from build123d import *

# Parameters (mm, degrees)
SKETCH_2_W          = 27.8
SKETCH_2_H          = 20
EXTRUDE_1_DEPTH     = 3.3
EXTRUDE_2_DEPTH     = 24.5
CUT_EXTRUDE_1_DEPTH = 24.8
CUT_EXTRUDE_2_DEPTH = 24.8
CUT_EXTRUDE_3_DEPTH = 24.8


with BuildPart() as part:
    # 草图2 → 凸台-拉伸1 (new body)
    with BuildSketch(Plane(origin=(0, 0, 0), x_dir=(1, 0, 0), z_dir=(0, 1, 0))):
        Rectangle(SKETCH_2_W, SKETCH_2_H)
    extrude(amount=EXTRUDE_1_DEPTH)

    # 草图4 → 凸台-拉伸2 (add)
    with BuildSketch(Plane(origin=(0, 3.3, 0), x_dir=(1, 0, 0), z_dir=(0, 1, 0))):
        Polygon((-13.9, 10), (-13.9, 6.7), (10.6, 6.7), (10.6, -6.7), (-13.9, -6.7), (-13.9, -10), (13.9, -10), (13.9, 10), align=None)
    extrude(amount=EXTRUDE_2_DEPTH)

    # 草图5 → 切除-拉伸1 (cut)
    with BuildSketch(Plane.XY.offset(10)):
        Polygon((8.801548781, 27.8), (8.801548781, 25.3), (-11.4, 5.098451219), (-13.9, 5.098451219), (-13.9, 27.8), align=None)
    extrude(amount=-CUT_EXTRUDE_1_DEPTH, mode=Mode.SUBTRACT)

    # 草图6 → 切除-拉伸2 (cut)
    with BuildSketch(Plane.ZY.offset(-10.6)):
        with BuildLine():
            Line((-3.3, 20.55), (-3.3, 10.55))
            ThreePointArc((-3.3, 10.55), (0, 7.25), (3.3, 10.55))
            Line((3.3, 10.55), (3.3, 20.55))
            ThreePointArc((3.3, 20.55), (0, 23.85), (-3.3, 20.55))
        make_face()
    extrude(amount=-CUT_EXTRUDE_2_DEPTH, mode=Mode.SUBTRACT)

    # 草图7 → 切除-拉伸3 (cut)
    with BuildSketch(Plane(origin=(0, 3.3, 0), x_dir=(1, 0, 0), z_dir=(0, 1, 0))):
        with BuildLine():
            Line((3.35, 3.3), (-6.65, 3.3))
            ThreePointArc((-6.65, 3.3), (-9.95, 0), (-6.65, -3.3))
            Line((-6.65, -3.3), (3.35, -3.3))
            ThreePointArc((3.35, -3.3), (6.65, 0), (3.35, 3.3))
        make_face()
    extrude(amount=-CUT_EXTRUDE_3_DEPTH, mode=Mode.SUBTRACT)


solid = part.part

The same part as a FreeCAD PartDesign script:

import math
import FreeCAD as App
import Part
import Sketcher

V = App.Vector
Q = App.Units.Quantity

doc = App.newDocument("Part")
params = doc.addObject("Spreadsheet::Sheet", "Params")
for row, (alias, value) in enumerate([
    ("sketch1_height", "20 mm"),
    ("sketch1_width", "27.8 mm"),
    ("pad1_length", "3.3 mm"),
    ("sketch2_height", "20 mm"),
    ("sketch2_width", "24.5 mm"),
    ("sketch2_width2", "27.8 mm"),
    ("sketch2_height2", "3.3 mm"),
    ("pad2_length", "24.5 mm"),
    ("sketch3_width", "2.5 mm"),
    ("pocket1_length", "24.8 mm"),
    ("sketch4_radius", "3.3 mm"),
    ("sketch4_width", "10 mm"),
    ("pocket2_length", "24.8 mm"),
    ("sketch5_radius", "3.3 mm"),
    ("sketch5_width", "10 mm"),
    ("pocket3_length", "24.8 mm"),
], start=1):
    params.set(f"A{row}", alias)
    params.set(f"B{row}", "=" + value)
    params.setAlias(f"B{row}", alias)

body = doc.addObject("PartDesign::Body", "Body")

sketch1 = body.newObject("Sketcher::SketchObject", "Sketch")
sketch1.AttachmentSupport = (doc.getObject("XZ_Plane"), [""])
sketch1.MapMode = "FlatFace"
sketch1.addGeometry([
    Part.LineSegment(V(-13.9, -10, 0), V(-13.9, 10, 0)),
    Part.LineSegment(V(-13.9, 10, 0), V(13.9, 10, 0)),
    Part.LineSegment(V(13.9, 10, 0), V(13.9, -10, 0)),
    Part.LineSegment(V(13.9, -10, 0), V(-13.9, -10, 0)),
], False)
sketch1.addConstraint([
    Sketcher.Constraint("Coincident", 0, 2, 1, 1),
    Sketcher.Constraint("Coincident", 1, 2, 2, 1),
    Sketcher.Constraint("Coincident", 2, 2, 3, 1),
    Sketcher.Constraint("Coincident", 3, 2, 0, 1),
    Sketcher.Constraint("Vertical", 0),
    Sketcher.Constraint("Horizontal", 1),
    Sketcher.Constraint("Vertical", 2),
    Sketcher.Constraint("Horizontal", 3),
    Sketcher.Constraint("Symmetric", 0, 2, 2, 2, -1, 1),
    Sketcher.Constraint("DistanceY", 0, 1, 0, 2, Q("20 mm")),
    Sketcher.Constraint("DistanceX", 1, 1, 1, 2, Q("27.8 mm")),
])
sketch1.setExpression("Constraints[9]", "Params.sketch1_height")
sketch1.setExpression("Constraints[10]", "Params.sketch1_width")
pad1 = body.newObject("PartDesign::Pad", "Pad")
pad1.Profile = sketch1
pad1.setExpression("Length", "Params.pad1_length")
pad1.Reversed = True

sketch2 = body.newObject("Sketcher::SketchObject", "Sketch001")
sketch2.AttachmentSupport = (doc.getObject("XZ_Plane"), [""])
sketch2.MapMode = "FlatFace"
sketch2.AttachmentOffset = App.Placement(V(0, 0, -3.3), App.Rotation())
sketch2.addGeometry([
    Part.LineSegment(V(-13.9, -10, 0), V(-13.9, -6.7, 0)),
    Part.LineSegment(V(-13.9, -6.7, 0), V(10.6, -6.7, 0)),
    Part.LineSegment(V(10.6, -6.7, 0), V(10.6, 6.7, 0)),
    Part.LineSegment(V(10.6, 6.7, 0), V(-13.9, 6.7, 0)),
    Part.LineSegment(V(-13.9, 6.7, 0), V(-13.9, 10, 0)),
    Part.LineSegment(V(-13.9, 10, 0), V(13.9, 10, 0)),
    Part.LineSegment(V(13.9, 10, 0), V(13.9, -10, 0)),
    Part.LineSegment(V(13.9, -10, 0), V(-13.9, -10, 0)),
], False)
sketch2.addConstraint([
    Sketcher.Constraint("Coincident", 0, 2, 1, 1),
    Sketcher.Constraint("Coincident", 1, 2, 2, 1),
    Sketcher.Constraint("Coincident", 2, 2, 3, 1),
    Sketcher.Constraint("Coincident", 3, 2, 4, 1),
    Sketcher.Constraint("Coincident", 4, 2, 5, 1),
    Sketcher.Constraint("Coincident", 5, 2, 6, 1),
    Sketcher.Constraint("Coincident", 6, 2, 7, 1),
    Sketcher.Constraint("Coincident", 7, 2, 0, 1),
    Sketcher.Constraint("Vertical", 0),
    Sketcher.Constraint("Horizontal", 1),
    Sketcher.Constraint("Vertical", 2),
    Sketcher.Constraint("Horizontal", 3),
    Sketcher.Constraint("Vertical", 4),
    Sketcher.Constraint("Horizontal", 5),
    Sketcher.Constraint("Vertical", 6),
    Sketcher.Constraint("Horizontal", 7),
    Sketcher.Constraint("Symmetric", 4, 2, 6, 2, -1, 1),
    Sketcher.Constraint("Symmetric", 0, 2, 3, 2, -1),
    Sketcher.Constraint("DistanceY", 6, 2, 6, 1, Q("20 mm")),
    Sketcher.Constraint("DistanceX", 1, 1, 1, 2, Q("24.5 mm")),
    Sketcher.Constraint("DistanceX", 5, 1, 5, 2, Q("27.8 mm")),
    Sketcher.Constraint("DistanceY", 0, 1, 0, 2, Q("3.3 mm")),
])
sketch2.setExpression("Constraints[18]", "Params.sketch2_height")
sketch2.setExpression("Constraints[19]", "Params.sketch2_width")
sketch2.setExpression("Constraints[20]", "Params.sketch2_width2")
sketch2.setExpression("Constraints[21]", "Params.sketch2_height2")
pad2 = body.newObject("PartDesign::Pad", "Pad001")
pad2.Profile = sketch2
pad2.setExpression("Length", "Params.pad2_length")
pad2.Reversed = True

sketch3 = body.newObject("Sketcher::SketchObject", "Sketch002")
sketch3.AttachmentSupport = (doc.getObject("XY_Plane"), [""])
sketch3.MapMode = "FlatFace"
sketch3.AttachmentOffset = App.Placement(V(0, 0, 10), App.Rotation())
sketch3.addGeometry([
    Part.LineSegment(V(8.801549, 25.3, 0), V(8.801549, 27.8, 0)),
    Part.LineSegment(V(8.801549, 27.8, 0), V(-13.9, 27.8, 0)),
    Part.LineSegment(V(-13.9, 27.8, 0), V(-13.9, 5.098451, 0)),
    Part.LineSegment(V(-13.9, 5.098451, 0), V(-11.4, 5.098451, 0)),
    Part.LineSegment(V(-11.4, 5.098451, 0), V(8.801549, 25.3, 0)),
], False)
sketch3.addConstraint([
    Sketcher.Constraint("Coincident", 0, 2, 1, 1),
    Sketcher.Constraint("Coincident", 1, 2, 2, 1),
    Sketcher.Constraint("Coincident", 2, 2, 3, 1),
    Sketcher.Constraint("Coincident", 3, 2, 4, 1),
    Sketcher.Constraint("Coincident", 4, 2, 0, 1),
    Sketcher.Constraint("Vertical", 0),
    Sketcher.Constraint("Horizontal", 1),
    Sketcher.Constraint("Vertical", 2),
    Sketcher.Constraint("Horizontal", 3),
    Sketcher.Constraint("Equal", 3, 0),
    Sketcher.Constraint("Equal", 1, 2),
    Sketcher.Constraint("DistanceX", 3, 1, 3, 2, Q("2.5 mm")),
    Sketcher.Constraint("DistanceY", -1, 1, 0, 2, Q("27.8 mm")),
    Sketcher.Constraint("DistanceX", 1, 2, -1, 1, Q("13.9 mm")),
    Sketcher.Constraint("DistanceX", 1, 2, 1, 1, Q("22.701549 mm")),
])
sketch3.setExpression("Constraints[11]", "Params.sketch3_width")
pocket1 = body.newObject("PartDesign::Pocket", "Pocket")
pocket1.Profile = sketch3
pocket1.setExpression("Length", "Params.pocket1_length")

sketch4 = body.newObject("Sketcher::SketchObject", "Sketch003")
sketch4.AttachmentSupport = (doc.getObject("YZ_Plane"), [""])
sketch4.MapMode = "FlatFace"
sketch4.AttachmentOffset = App.Placement(V(0, 0, 10.6), App.Rotation())
sketch4.addGeometry([
    Part.LineSegment(V(20.55, -3.3, 0), V(10.55, -3.3, 0)),
    Part.ArcOfCircle(Part.Circle(V(10.55, 0, 0), V(0, 0, 1), 3.3), math.radians(90), math.radians(270)),
    Part.LineSegment(V(10.55, 3.3, 0), V(20.55, 3.3, 0)),
    Part.ArcOfCircle(Part.Circle(V(20.55, 0, 0), V(0, 0, 1), 3.3), math.radians(-90), math.radians(90)),
], False)
sketch4.addConstraint([
    Sketcher.Constraint("Tangent", 0, 2, 1, 2),
    Sketcher.Constraint("Tangent", 1, 1, 2, 1),
    Sketcher.Constraint("Tangent", 2, 2, 3, 2),
    Sketcher.Constraint("Tangent", 3, 1, 0, 1),
    Sketcher.Constraint("Horizontal", 0),
    Sketcher.Constraint("Horizontal", 2),
    Sketcher.Constraint("PointOnObject", 1, 3, -1),
    Sketcher.Constraint("Radius", 1, Q("3.3 mm")),
    Sketcher.Constraint("DistanceX", 0, 2, 0, 1, Q("10 mm")),
    Sketcher.Constraint("DistanceX", -1, 1, 1, 3, Q("10.55 mm")),
])
sketch4.setExpression("Constraints[7]", "Params.sketch4_radius")
sketch4.setExpression("Constraints[8]", "Params.sketch4_width")
pocket2 = body.newObject("PartDesign::Pocket", "Pocket001")
pocket2.Profile = sketch4
pocket2.setExpression("Length", "Params.pocket2_length")
pocket2.Reversed = True

sketch5 = body.newObject("Sketcher::SketchObject", "Sketch004")
sketch5.AttachmentSupport = (doc.getObject("XZ_Plane"), [""])
sketch5.MapMode = "FlatFace"
sketch5.AttachmentOffset = App.Placement(V(0, 0, -3.3), App.Rotation())
sketch5.addGeometry([
    Part.LineSegment(V(3.35, -3.3, 0), V(-6.65, -3.3, 0)),
    Part.ArcOfCircle(Part.Circle(V(-6.65, 0, 0), V(0, 0, 1), 3.3), math.radians(90), math.radians(270)),
    Part.LineSegment(V(-6.65, 3.3, 0), V(3.35, 3.3, 0)),
    Part.ArcOfCircle(Part.Circle(V(3.35, 0, 0), V(0, 0, 1), 3.3), math.radians(-90), math.radians(90)),
], False)
sketch5.addConstraint([
    Sketcher.Constraint("Tangent", 0, 2, 1, 2),
    Sketcher.Constraint("Tangent", 1, 1, 2, 1),
    Sketcher.Constraint("Tangent", 2, 2, 3, 2),
    Sketcher.Constraint("Tangent", 3, 1, 0, 1),
    Sketcher.Constraint("Horizontal", 0),
    Sketcher.Constraint("Horizontal", 2),
    Sketcher.Constraint("PointOnObject", 1, 3, -1),
    Sketcher.Constraint("Radius", 1, Q("3.3 mm")),
    Sketcher.Constraint("DistanceX", 0, 2, 0, 1, Q("10 mm")),
    Sketcher.Constraint("DistanceX", 1, 3, -1, 1, Q("6.65 mm")),
])
sketch5.setExpression("Constraints[7]", "Params.sketch5_radius")
sketch5.setExpression("Constraints[8]", "Params.sketch5_width")
pocket3 = body.newObject("PartDesign::Pocket", "Pocket002")
pocket3.Profile = sketch5
pocket3.setExpression("Length", "Params.pocket3_length")
pocket3.Reversed = True

doc.recompute()
